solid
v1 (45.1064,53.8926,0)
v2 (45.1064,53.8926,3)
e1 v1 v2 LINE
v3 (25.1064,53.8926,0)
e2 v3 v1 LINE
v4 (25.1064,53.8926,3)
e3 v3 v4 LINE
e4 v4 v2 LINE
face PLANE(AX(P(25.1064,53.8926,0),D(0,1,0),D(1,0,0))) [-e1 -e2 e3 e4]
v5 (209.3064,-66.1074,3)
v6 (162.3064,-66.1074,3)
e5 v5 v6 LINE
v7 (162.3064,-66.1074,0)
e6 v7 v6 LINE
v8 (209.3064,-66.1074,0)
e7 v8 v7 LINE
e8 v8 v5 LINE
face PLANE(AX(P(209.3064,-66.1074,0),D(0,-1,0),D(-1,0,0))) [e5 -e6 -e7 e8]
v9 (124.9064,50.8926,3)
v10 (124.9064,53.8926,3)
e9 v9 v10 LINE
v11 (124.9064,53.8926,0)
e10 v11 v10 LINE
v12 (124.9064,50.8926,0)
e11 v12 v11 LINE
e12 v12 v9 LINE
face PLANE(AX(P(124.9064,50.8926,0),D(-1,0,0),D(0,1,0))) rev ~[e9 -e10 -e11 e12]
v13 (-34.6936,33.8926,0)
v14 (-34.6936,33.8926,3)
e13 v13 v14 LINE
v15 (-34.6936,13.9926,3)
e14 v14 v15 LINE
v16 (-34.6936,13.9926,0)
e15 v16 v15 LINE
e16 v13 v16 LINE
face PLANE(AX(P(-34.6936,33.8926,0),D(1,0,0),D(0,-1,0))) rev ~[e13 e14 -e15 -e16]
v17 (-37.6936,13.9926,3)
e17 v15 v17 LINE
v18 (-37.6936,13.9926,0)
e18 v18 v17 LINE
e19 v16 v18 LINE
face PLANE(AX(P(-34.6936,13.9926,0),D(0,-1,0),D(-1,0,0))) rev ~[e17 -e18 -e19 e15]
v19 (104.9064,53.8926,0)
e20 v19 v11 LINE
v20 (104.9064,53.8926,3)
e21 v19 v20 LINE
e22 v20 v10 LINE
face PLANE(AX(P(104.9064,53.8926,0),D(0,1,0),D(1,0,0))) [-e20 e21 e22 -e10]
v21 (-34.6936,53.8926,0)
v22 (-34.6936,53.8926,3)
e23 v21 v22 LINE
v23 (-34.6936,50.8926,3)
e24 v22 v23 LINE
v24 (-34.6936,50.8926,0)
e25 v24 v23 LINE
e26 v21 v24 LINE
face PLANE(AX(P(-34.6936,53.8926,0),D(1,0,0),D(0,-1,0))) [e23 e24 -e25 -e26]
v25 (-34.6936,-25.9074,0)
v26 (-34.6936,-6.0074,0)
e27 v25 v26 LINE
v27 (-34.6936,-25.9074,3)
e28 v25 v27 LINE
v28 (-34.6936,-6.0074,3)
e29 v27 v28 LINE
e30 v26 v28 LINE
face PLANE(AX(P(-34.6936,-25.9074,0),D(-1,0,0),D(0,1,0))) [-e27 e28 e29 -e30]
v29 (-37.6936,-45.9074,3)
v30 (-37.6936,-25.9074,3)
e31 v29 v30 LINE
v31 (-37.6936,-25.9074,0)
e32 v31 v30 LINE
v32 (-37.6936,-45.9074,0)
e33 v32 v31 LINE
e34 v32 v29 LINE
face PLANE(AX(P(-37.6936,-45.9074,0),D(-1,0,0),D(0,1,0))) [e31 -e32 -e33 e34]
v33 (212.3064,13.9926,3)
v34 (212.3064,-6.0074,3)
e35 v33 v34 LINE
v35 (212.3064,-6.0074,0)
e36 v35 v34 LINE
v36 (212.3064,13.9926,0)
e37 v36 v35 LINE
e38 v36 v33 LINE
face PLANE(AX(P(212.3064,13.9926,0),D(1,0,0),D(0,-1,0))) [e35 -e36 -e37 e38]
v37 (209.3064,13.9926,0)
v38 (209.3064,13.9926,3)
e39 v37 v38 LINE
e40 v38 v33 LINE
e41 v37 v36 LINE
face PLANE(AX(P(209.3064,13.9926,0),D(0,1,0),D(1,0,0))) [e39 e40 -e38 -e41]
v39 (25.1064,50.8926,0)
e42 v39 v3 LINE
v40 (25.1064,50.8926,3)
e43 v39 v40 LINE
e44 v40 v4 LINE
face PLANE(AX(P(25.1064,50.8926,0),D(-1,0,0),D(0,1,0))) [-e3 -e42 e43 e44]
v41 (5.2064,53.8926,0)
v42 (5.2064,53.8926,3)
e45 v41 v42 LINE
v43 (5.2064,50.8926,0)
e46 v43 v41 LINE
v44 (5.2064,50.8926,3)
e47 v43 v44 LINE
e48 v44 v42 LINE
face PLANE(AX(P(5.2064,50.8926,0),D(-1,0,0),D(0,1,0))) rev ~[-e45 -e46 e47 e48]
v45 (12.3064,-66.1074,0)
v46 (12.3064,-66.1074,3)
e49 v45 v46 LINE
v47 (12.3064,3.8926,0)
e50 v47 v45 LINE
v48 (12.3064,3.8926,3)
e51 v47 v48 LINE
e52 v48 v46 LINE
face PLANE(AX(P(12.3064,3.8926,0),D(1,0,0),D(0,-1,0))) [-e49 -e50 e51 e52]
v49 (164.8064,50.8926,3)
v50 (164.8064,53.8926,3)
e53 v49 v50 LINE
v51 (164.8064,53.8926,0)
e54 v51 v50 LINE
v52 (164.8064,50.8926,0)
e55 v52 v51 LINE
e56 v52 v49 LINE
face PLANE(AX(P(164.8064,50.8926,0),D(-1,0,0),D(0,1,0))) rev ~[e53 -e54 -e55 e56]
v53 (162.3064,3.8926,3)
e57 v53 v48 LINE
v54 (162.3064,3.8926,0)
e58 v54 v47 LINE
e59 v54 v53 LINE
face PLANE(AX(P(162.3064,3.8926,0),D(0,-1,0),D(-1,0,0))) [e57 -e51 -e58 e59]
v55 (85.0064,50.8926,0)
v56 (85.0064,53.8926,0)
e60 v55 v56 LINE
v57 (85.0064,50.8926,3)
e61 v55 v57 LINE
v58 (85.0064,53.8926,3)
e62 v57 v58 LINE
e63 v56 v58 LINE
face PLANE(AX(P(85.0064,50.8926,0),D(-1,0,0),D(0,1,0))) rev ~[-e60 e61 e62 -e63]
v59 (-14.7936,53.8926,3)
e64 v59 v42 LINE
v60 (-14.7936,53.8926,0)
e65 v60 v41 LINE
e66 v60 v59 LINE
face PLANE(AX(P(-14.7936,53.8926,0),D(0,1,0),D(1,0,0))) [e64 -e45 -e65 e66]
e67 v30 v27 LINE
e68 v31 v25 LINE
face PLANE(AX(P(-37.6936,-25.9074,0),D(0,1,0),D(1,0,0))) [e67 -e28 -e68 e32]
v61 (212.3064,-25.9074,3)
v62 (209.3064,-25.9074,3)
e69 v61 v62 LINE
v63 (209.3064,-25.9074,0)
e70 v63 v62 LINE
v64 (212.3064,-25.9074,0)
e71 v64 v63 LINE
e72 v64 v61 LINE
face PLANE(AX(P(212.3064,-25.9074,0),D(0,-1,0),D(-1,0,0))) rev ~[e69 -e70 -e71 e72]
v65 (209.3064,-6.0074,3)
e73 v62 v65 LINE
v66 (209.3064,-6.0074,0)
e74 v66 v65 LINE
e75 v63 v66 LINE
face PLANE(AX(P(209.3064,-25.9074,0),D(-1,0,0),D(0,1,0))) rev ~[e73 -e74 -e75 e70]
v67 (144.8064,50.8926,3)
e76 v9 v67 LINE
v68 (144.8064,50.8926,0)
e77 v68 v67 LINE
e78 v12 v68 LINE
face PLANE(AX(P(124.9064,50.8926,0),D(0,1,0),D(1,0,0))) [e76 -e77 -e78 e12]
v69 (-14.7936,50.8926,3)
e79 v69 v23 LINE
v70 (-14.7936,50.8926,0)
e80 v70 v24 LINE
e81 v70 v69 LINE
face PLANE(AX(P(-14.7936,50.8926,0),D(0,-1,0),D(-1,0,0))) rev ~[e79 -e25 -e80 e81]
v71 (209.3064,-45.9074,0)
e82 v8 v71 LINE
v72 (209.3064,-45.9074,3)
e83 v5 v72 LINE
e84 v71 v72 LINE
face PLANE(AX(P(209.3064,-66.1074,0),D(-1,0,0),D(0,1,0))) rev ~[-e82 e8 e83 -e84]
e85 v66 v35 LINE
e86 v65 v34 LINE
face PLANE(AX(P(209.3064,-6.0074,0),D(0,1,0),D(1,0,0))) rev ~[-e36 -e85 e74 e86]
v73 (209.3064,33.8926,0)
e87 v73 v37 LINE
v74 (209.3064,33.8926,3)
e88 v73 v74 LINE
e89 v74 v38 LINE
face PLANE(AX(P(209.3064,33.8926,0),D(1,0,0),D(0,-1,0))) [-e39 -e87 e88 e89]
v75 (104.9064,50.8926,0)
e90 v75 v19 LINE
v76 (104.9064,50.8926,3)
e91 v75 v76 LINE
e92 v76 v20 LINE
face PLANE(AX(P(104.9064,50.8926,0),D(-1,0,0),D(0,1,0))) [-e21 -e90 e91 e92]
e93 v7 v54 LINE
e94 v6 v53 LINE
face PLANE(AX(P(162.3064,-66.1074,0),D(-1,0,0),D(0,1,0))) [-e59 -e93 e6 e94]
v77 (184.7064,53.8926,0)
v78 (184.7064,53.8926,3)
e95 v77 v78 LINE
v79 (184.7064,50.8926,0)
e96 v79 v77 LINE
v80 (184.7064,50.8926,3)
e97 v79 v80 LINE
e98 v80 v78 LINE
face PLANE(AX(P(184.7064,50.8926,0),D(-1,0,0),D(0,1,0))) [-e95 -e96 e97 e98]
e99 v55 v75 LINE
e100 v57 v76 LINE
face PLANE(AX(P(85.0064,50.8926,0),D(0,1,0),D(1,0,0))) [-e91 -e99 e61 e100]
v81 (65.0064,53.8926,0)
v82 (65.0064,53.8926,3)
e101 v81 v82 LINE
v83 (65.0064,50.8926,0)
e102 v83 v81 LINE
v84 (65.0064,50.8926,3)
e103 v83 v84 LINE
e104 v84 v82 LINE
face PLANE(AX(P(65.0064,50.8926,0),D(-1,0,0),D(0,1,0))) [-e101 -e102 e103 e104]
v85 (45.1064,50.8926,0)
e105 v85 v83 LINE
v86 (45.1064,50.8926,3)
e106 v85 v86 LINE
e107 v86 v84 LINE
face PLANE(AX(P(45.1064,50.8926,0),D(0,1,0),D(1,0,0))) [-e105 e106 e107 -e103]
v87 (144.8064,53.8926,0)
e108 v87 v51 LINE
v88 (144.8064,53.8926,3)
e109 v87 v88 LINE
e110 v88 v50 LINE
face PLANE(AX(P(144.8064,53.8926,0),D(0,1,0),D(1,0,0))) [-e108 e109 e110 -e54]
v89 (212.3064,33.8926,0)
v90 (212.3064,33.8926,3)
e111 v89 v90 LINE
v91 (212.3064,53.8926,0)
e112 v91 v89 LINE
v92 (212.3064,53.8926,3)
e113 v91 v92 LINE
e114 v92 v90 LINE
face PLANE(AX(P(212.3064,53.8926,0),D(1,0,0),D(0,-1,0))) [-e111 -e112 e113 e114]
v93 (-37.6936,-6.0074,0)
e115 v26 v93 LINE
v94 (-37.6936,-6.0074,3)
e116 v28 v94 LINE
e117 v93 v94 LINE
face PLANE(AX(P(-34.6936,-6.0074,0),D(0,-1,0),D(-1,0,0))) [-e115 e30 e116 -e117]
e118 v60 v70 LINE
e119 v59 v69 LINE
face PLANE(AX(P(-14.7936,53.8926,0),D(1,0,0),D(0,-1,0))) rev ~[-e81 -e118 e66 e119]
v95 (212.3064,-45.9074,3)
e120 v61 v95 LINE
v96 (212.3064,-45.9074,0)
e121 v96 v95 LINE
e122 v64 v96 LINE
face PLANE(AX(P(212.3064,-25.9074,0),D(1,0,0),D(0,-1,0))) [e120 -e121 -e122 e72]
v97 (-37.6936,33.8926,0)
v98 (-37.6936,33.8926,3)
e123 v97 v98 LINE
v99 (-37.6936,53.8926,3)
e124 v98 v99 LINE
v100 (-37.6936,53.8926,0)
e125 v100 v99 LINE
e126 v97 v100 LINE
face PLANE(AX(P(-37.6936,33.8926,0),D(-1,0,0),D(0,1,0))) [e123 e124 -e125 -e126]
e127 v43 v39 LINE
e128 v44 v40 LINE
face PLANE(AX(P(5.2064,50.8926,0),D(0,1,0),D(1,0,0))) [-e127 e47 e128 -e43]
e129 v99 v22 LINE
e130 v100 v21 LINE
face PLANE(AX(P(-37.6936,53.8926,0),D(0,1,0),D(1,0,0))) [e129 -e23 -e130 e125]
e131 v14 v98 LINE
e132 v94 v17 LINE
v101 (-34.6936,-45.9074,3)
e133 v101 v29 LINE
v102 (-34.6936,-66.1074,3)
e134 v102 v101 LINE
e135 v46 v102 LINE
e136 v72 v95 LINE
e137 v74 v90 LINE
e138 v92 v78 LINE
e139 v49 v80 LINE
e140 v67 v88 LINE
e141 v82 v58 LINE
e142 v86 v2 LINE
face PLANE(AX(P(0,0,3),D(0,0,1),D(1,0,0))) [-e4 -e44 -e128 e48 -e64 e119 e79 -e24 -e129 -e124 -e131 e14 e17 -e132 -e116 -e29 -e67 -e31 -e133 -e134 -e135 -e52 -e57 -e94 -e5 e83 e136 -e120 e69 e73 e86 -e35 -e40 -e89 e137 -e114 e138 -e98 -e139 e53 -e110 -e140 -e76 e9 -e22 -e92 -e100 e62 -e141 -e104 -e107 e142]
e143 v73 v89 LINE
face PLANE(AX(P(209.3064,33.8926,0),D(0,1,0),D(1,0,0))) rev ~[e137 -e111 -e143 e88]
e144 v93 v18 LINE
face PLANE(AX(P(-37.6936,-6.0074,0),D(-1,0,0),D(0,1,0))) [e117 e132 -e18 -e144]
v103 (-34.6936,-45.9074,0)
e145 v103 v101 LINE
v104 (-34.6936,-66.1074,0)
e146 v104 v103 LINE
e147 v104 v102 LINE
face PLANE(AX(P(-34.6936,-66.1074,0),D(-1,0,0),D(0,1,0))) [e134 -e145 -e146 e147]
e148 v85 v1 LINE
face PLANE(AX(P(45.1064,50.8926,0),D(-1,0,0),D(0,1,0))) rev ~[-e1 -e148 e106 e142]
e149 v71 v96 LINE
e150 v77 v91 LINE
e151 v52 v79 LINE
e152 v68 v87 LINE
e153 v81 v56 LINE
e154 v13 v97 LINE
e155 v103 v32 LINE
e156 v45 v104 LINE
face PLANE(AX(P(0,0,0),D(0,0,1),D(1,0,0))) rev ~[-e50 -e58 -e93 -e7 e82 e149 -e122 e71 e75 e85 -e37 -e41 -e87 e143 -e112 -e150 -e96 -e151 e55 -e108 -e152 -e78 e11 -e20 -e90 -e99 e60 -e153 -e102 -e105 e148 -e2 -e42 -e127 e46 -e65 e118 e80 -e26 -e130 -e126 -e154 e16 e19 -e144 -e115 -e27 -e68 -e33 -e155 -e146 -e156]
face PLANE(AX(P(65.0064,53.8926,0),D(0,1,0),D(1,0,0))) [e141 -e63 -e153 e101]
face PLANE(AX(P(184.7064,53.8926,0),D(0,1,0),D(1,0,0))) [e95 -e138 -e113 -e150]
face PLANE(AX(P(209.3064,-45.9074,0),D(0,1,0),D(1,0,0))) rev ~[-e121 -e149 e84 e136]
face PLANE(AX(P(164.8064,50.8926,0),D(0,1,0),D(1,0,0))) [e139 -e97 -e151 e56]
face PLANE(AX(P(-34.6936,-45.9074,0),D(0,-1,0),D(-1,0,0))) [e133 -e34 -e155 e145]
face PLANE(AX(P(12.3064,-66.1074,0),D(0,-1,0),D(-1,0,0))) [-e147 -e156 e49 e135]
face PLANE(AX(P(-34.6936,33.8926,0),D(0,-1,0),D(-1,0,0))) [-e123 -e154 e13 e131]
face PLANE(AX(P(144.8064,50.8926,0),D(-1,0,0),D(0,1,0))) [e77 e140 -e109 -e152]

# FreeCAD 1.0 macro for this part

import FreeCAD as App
import Part
import Sketcher

V = App.Vector


def add_polygon(sketch, points):
    """Adds a closed chain of lines whose ends are joined by coincident constraints."""
    first, n = sketch.GeometryCount, len(points)
    for a, b in zip(points, points[1:] + points[:1]):
        sketch.addGeometry(Part.LineSegment(App.Vector(*a, 0), App.Vector(*b, 0)), False)
    for i in range(n):
        sketch.addConstraint(Sketcher.Constraint("Coincident", first + i, 2, first + (i + 1) % n, 1))

doc = App.newDocument("Part")
body = doc.addObject("PartDesign::Body", "Body")

# Sketch on XY plane
sketch1 = body.newObject("Sketcher::SketchObject", "Sketch")
sketch1.AttachmentSupport = (doc.getObject("XY_Plane"), [""])
sketch1.MapMode = "FlatFace"
add_polygon(sketch1, [(-34.6936, 53.8926), (-37.6936, 53.8926), (-37.6936, 33.8926), (-34.6936, 33.8926), (-34.6936, 13.9926), (-37.6936, 13.9926), (-37.6936, -6.0074), (-34.6936, -6.0074), (-34.6936, -25.9074), (-37.6936, -25.9074), (-37.6936, -45.9074), (-34.6936, -45.9074), (-34.6936, -66.1074), (12.3064, -66.1074), (12.3064, 3.8926), (162.3064, 3.8926), (162.3064, -66.1074), (209.3064, -66.1074), (209.3064, -45.9074), (212.3064, -45.9074), (212.3064, -25.9074), (209.3064, -25.9074), (209.3064, -6.0074), (212.3064, -6.0074), (212.3064, 13.9926), (209.3064, 13.9926), (209.3064, 33.8926), (212.3064, 33.8926), (212.3064, 53.8926), (184.7064, 53.8926), (184.7064, 50.8926), (164.8064, 50.8926), (164.8064, 53.8926), (144.8064, 53.8926), (144.8064, 50.8926), (124.9064, 50.8926), (124.9064, 53.8926), (104.9064, 53.8926), (104.9064, 50.8926), (85.0064, 50.8926), (85.0064, 53.8926), (65.0064, 53.8926), (65.0064, 50.8926), (45.1064, 50.8926), (45.1064, 53.8926), (25.1064, 53.8926), (25.1064, 50.8926), (5.2064, 50.8926), (5.2064, 53.8926), (-14.7936, 53.8926), (-14.7936, 50.8926), (-34.6936, 50.8926)])  # lines 0-51
sketch1.addConstraint([
    Sketcher.Constraint("Horizontal", 0),
    Sketcher.Constraint("Vertical", 1),
    Sketcher.Constraint("Horizontal", 2),
    Sketcher.Constraint("Vertical", 3),
    Sketcher.Constraint("Horizontal", 4),
    Sketcher.Constraint("Vertical", 5),
    Sketcher.Constraint("Horizontal", 6),
    Sketcher.Constraint("Vertical", 7),
    Sketcher.Constraint("Horizontal", 8),
    Sketcher.Constraint("Vertical", 9),
    Sketcher.Constraint("Horizontal", 10),
    Sketcher.Constraint("Vertical", 11),
    Sketcher.Constraint("Horizontal", 12),
    Sketcher.Constraint("Vertical", 13),
    Sketcher.Constraint("Horizontal", 14),
    Sketcher.Constraint("Vertical", 15),
    Sketcher.Constraint("Horizontal", 16),
    Sketcher.Constraint("Vertical", 17),
    Sketcher.Constraint("Horizontal", 18),
    Sketcher.Constraint("Vertical", 19),
    Sketcher.Constraint("Horizontal", 20),
    Sketcher.Constraint("Vertical", 21),
    Sketcher.Constraint("Horizontal", 22),
    Sketcher.Constraint("Vertical", 23),
    Sketcher.Constraint("Horizontal", 24),
    Sketcher.Constraint("Vertical", 25),
    Sketcher.Constraint("Horizontal", 26),
    Sketcher.Constraint("Vertical", 27),
    Sketcher.Constraint("Horizontal", 28),
    Sketcher.Constraint("Vertical", 29),
    Sketcher.Constraint("Horizontal", 30),
    Sketcher.Constraint("Vertical", 31),
    Sketcher.Constraint("Horizontal", 32),
    Sketcher.Constraint("Vertical", 33),
    Sketcher.Constraint("Horizontal", 34),
    Sketcher.Constraint("Vertical", 35),
    Sketcher.Constraint("Horizontal", 36),
    Sketcher.Constraint("Vertical", 37),
    Sketcher.Constraint("Horizontal", 38),
    Sketcher.Constraint("Vertical", 39),
    Sketcher.Constraint("Horizontal", 40),
    Sketcher.Constraint("Vertical", 41),
    Sketcher.Constraint("Horizontal", 42),
    Sketcher.Constraint("Vertical", 43),
    Sketcher.Constraint("Horizontal", 44),
    Sketcher.Constraint("Vertical", 45),
    Sketcher.Constraint("Horizontal", 46),
    Sketcher.Constraint("Vertical", 47),
    Sketcher.Constraint("Horizontal", 48),
    Sketcher.Constraint("Vertical", 49),
    Sketcher.Constraint("Horizontal", 50),
    Sketcher.Constraint("Vertical", 51),
    Sketcher.Constraint("Horizontal", 12, 2, 15, 2),
    Sketcher.Constraint("Horizontal", 10, 2, 17, 2),
    Sketcher.Constraint("Horizontal", 8, 2, 19, 2),
    Sketcher.Constraint("Horizontal", 6, 2, 21, 2),
    Sketcher.Constraint("Horizontal", 4, 2, 23, 2),
    Sketcher.Constraint("Horizontal", 2, 2, 25, 2),
    Sketcher.Constraint("Horizontal", 0, 2, 27, 2),
    Sketcher.Constraint("Horizontal", 28, 2, 31, 2),
    Sketcher.Constraint("Horizontal", 30, 2, 33, 2),
    Sketcher.Constraint("Horizontal", 32, 2, 35, 2),
    Sketcher.Constraint("Horizontal", 34, 2, 37, 2),
    Sketcher.Constraint("Horizontal", 36, 2, 39, 2),
    Sketcher.Constraint("Horizontal", 38, 2, 41, 2),
    Sketcher.Constraint("Horizontal", 40, 2, 43, 2),
    Sketcher.Constraint("Horizontal", 42, 2, 45, 2),
    Sketcher.Constraint("Horizontal", 44, 2, 47, 2),
    Sketcher.Constraint("Horizontal", 46, 2, 49, 2),
    Sketcher.Constraint("Vertical", 1, 2, 4, 2),
    Sketcher.Constraint("Vertical", 3, 2, 6, 2),
    Sketcher.Constraint("Vertical", 5, 2, 8, 2),
    Sketcher.Constraint("Vertical", 7, 2, 10, 2),
    Sketcher.Constraint("Vertical", 17, 2, 20, 2),
    Sketcher.Constraint("Vertical", 19, 2, 22, 2),
    Sketcher.Constraint("Vertical", 21, 2, 24, 2),
    Sketcher.Constraint("Vertical", 23, 2, 26, 2),
    Sketcher.Constraint("Vertical", 11, 2, 50, 2),
    Sketcher.Constraint("Equal", 12, 16),
    Sketcher.Constraint("Equal", 10, 18),
    Sketcher.Constraint("Equal", 30, 34),
    Sketcher.Constraint("Equal", 32, 36),
    Sketcher.Constraint("Equal", 34, 38),
    Sketcher.Constraint("Equal", 36, 40),
    Sketcher.Constraint("Equal", 38, 42),
    Sketcher.Constraint("Equal", 40, 44),
    Sketcher.Constraint("Equal", 42, 46),
    Sketcher.Constraint("Equal", 44, 48),
    Sketcher.Constraint("Equal", 46, 50),
    Sketcher.Constraint("Equal", 48, 1),
    Sketcher.Constraint("Equal", 50, 3),
    Sketcher.Constraint("Equal", 1, 5),
    Sketcher.Constraint("Equal", 3, 7),
    Sketcher.Constraint("Equal", 5, 9),
    Sketcher.Constraint("Equal", 26, 29),
    Sketcher.Constraint("DistanceX", 0, 2, 0, 1, 3.0),
    Sketcher.Constraint("DistanceX", 14, 1, 14, 2, 150.0),
    Sketcher.Constraint("DistanceX", 32, 2, 32, 1, 20.0),
    Sketcher.Constraint("DistanceY", 13, 1, 13, 2, 70.0),
    Sketcher.Constraint("DistanceX", 30, 2, 30, 1, 19.9),
    Sketcher.Constraint("DistanceX", 9, 2, 12, 2, 50.0),
    Sketcher.Constraint("DistanceY", 14, 2, 32, 2, 50.0),
    Sketcher.Constraint("DistanceX", 0, 2, -1, 1, 37.6936),
    Sketcher.Constraint("DistanceY", -1, 1, 0, 2, 53.8926),
])
pad1 = body.newObject("PartDesign::Pad", "Pad")
pad1.Profile = sketch1
pad1.Length = 3

doc.recompute()
